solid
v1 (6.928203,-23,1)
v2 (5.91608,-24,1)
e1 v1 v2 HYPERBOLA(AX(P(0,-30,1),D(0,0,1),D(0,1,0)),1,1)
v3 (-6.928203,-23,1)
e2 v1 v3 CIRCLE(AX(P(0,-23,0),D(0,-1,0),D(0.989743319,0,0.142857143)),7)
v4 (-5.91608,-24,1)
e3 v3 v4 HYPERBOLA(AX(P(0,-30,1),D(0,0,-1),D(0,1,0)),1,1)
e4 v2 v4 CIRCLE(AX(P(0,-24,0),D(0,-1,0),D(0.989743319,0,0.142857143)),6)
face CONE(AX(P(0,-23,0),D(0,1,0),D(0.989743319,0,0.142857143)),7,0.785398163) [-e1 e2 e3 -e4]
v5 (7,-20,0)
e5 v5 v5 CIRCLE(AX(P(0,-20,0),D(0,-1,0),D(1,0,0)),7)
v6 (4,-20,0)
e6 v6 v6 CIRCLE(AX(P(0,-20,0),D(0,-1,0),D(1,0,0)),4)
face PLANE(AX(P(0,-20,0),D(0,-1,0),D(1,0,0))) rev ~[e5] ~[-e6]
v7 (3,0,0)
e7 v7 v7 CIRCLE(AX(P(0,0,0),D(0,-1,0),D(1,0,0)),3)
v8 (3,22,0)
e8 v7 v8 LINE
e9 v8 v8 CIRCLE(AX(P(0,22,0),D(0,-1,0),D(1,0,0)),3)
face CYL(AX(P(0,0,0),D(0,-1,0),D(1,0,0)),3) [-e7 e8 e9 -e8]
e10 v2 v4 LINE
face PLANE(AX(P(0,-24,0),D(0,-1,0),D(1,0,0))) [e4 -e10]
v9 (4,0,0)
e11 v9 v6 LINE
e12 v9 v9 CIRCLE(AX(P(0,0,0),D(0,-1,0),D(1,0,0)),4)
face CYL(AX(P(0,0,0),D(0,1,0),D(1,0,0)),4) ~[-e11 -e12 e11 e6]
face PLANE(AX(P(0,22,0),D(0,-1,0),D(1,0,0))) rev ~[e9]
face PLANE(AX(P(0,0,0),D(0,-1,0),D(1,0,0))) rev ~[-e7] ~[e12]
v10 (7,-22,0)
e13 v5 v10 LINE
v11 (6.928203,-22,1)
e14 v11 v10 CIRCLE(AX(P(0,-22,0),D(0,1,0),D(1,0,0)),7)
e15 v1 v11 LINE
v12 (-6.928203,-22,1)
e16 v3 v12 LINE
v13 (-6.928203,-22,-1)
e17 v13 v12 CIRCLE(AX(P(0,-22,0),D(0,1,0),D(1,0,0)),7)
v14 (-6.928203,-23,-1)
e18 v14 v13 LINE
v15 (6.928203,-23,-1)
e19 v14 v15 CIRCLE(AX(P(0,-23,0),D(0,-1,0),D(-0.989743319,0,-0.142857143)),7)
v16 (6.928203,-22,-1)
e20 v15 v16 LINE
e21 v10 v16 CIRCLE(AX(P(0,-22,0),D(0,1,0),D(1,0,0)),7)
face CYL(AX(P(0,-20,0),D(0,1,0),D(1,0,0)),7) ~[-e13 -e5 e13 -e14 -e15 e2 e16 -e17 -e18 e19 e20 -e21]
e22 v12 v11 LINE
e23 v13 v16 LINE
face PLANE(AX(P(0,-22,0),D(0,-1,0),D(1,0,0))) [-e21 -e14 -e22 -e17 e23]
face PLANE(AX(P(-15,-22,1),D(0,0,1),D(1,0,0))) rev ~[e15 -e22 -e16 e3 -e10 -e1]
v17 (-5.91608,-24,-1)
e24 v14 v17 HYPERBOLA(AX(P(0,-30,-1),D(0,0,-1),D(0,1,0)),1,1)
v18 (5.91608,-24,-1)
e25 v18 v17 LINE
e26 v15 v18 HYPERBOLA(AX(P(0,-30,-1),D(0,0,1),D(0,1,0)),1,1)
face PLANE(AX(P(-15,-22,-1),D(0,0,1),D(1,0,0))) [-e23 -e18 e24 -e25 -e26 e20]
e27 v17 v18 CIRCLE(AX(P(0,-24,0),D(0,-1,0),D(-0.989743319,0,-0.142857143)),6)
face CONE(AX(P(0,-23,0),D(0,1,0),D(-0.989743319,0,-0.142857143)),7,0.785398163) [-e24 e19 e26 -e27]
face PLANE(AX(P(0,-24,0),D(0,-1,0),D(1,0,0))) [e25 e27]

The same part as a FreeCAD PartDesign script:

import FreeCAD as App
import Part
import Sketcher
from FreeCAD import Vector
Q = App.Units.Quantity


def edges_at(feature, points):
    """Names of the edges that pass closest to the given points."""
    edges = feature.Shape.Edges
    near = lambda p: min(range(len(edges)), key=lambda i: edges[i].distToShape(Part.Vertex(*p))[0])
    return sorted({f"Edge{near(p) + 1}" for p in points})

doc = App.newDocument("Part")
params = doc.addObject("Spreadsheet::Sheet", "Params")
for row, (alias, value) in enumerate([
    ("sketch1_diameter", "6 mm"),
    ("pad1_length", "22 mm"),
    ("pad1_length2", "24 mm"),
    ("sketch2_diameter", "8 mm"),
    ("sketch2_diameter2", "6 mm"),
    ("pad2_length", "24 mm"),
    ("sketch3_diameter", "14 mm"),
    ("sketch3_diameter2", "8 mm"),
    ("pad3_length", "4 mm"),
    ("sketch4_width", "30 mm"),
    ("sketch4_height", "2 mm"),
    ("pocket1_length", "3 mm"),
    ("chamfer_size", "1 mm"),
], start=1):
    params.set(f"A{row}", alias)
    params.set(f"B{row}", "=" + value)
    params.setAlias(f"B{row}", alias)

body = doc.addObject("PartDesign::Body", "Body")

sketch1 = doc.addObject("Sketcher::SketchObject", "Sketch")
body.addObject(sketch1)
sketch1.AttachmentSupport = (doc.XZ_Plane, [""])
sketch1.MapMode = "FlatFace"
sketch1.addGeometry(Part.Circle(Vector(0, 0, 0), Vector(0, 0, 1), 3), False)
sketch1.addConstraint([
    Sketcher.Constraint("Coincident", 0, 3, -1, 1),
    Sketcher.Constraint("Diameter", 0, Q("6 mm")),
])
sketch1.setExpression("Constraints[1]", "Params.sketch1_diameter")
pad1 = doc.addObject("PartDesign::Pad", "Pad")
body.addObject(pad1)
pad1.Profile = sketch1
pad1.Type = "TwoLengths"
pad1.setExpression("Length", "Params.pad1_length")
pad1.setExpression("Length2", "Params.pad1_length2")
pad1.Reversed = True

sketch2 = doc.addObject("Sketcher::SketchObject", "Sketch001")
body.addObject(sketch2)
sketch2.AttachmentSupport = (doc.XZ_Plane, [""])
sketch2.MapMode = "FlatFace"
sketch2.addGeometry([
    Part.Circle(Vector(0, 0, 0), Vector(0, 0, 1), 4),
    Part.Circle(Vector(0, 0, 0), Vector(0, 0, 1), 3),
], False)
sketch2.addConstraint([
    Sketcher.Constraint("Coincident", 0, 3, -1, 1),
    Sketcher.Constraint("Coincident", 1, 3, -1, 1),
    Sketcher.Constraint("Diameter", 0, Q("8 mm")),
    Sketcher.Constraint("Diameter", 1, Q("6 mm")),
])
sketch2.setExpression("Constraints[2]", "Params.sketch2_diameter")
sketch2.setExpression("Constraints[3]", "Params.sketch2_diameter2")
pad2 = doc.addObject("PartDesign::Pad", "Pad001")
body.addObject(pad2)
pad2.Profile = sketch2
pad2.setExpression("Length", "Params.pad2_length")

sketch3 = doc.addObject("Sketcher::SketchObject", "Sketch002")
body.addObject(sketch3)
sketch3.AttachmentSupport = (doc.XZ_Plane, [""])
sketch3.MapMode = "FlatFace"
sketch3.AttachmentOffset = App.Placement(Vector(0, 0, 20), App.Rotation())
sketch3.addGeometry([
    Part.Circle(Vector(0, 0, 0), Vector(0, 0, 1), 7),
    Part.Circle(Vector(0, 0, 0), Vector(0, 0, 1), 4),
], False)
sketch3.addConstraint([
    Sketcher.Constraint("Coincident", 0, 3, -1, 1),
    Sketcher.Constraint("Coincident", 1, 3, -1, 1),
    Sketcher.Constraint("Diameter", 0, Q("14 mm")),
    Sketcher.Constraint("Diameter", 1, Q("8 mm")),
])
sketch3.setExpression("Constraints[2]", "Params.sketch3_diameter")
sketch3.setExpression("Constraints[3]", "Params.sketch3_diameter2")
pad3 = doc.addObject("PartDesign::Pad", "Pad002")
body.addObject(pad3)
pad3.Profile = sketch3
pad3.setExpression("Length", "Params.pad3_length")

sketch4 = doc.addObject("Sketcher::SketchObject", "Sketch003")
body.addObject(sketch4)
sketch4.AttachmentSupport = (doc.XZ_Plane, [""])
sketch4.MapMode = "FlatFace"
sketch4.AttachmentOffset = App.Placement(Vector(0, 0, 22), App.Rotation())
sketch4.addGeometry([
    Part.LineSegment(Vector(-15, 1, 0), Vector(-15, -1, 0)),
    Part.LineSegment(Vector(-15, -1, 0), Vector(15, -1, 0)),
    Part.LineSegment(Vector(15, -1, 0), Vector(15, 1, 0)),
    Part.LineSegment(Vector(15, 1, 0), Vector(-15, 1, 0)),
], False)
sketch4.addConstraint([
    Sketcher.Constraint("Coincident", 0, 2, 1, 1),
    Sketcher.Constraint("Coincident", 1, 2, 2, 1),
    Sketcher.Constraint("Coincident", 2, 2, 3, 1),
    Sketcher.Constraint("Coincident", 3, 2, 0, 1),
    Sketcher.Constraint("Vertical", 0),
    Sketcher.Constraint("Horizontal", 1),
    Sketcher.Constraint("Vertical", 2),
    Sketcher.Constraint("Horizontal", 3),
    Sketcher.Constraint("Symmetric", 0, 2, 2, 2, -1, 1),
    Sketcher.Constraint("DistanceX", 1, 1, 1, 2, Q("30 mm")),
    Sketcher.Constraint("DistanceY", 0, 2, 0, 1, Q("2 mm")),
])
sketch4.setExpression("Constraints[9]", "Params.sketch4_width")
sketch4.setExpression("Constraints[10]", "Params.sketch4_height")
pocket1 = doc.addObject("PartDesign::Pocket", "Pocket")
body.addObject(pocket1)
pocket1.Profile = sketch4
pocket1.setExpression("Length", "Params.pocket1_length")
pocket1.Reversed = True
doc.recompute()

chamfer = doc.addObject("PartDesign::Chamfer", "Chamfer")
body.addObject(chamfer)
chamfer.Base = (pocket1, edges_at(pocket1, [(0, -24, 7), (0, -24, -7)]))
chamfer.setExpression("Size", "Params.chamfer_size")

doc.recompute()
